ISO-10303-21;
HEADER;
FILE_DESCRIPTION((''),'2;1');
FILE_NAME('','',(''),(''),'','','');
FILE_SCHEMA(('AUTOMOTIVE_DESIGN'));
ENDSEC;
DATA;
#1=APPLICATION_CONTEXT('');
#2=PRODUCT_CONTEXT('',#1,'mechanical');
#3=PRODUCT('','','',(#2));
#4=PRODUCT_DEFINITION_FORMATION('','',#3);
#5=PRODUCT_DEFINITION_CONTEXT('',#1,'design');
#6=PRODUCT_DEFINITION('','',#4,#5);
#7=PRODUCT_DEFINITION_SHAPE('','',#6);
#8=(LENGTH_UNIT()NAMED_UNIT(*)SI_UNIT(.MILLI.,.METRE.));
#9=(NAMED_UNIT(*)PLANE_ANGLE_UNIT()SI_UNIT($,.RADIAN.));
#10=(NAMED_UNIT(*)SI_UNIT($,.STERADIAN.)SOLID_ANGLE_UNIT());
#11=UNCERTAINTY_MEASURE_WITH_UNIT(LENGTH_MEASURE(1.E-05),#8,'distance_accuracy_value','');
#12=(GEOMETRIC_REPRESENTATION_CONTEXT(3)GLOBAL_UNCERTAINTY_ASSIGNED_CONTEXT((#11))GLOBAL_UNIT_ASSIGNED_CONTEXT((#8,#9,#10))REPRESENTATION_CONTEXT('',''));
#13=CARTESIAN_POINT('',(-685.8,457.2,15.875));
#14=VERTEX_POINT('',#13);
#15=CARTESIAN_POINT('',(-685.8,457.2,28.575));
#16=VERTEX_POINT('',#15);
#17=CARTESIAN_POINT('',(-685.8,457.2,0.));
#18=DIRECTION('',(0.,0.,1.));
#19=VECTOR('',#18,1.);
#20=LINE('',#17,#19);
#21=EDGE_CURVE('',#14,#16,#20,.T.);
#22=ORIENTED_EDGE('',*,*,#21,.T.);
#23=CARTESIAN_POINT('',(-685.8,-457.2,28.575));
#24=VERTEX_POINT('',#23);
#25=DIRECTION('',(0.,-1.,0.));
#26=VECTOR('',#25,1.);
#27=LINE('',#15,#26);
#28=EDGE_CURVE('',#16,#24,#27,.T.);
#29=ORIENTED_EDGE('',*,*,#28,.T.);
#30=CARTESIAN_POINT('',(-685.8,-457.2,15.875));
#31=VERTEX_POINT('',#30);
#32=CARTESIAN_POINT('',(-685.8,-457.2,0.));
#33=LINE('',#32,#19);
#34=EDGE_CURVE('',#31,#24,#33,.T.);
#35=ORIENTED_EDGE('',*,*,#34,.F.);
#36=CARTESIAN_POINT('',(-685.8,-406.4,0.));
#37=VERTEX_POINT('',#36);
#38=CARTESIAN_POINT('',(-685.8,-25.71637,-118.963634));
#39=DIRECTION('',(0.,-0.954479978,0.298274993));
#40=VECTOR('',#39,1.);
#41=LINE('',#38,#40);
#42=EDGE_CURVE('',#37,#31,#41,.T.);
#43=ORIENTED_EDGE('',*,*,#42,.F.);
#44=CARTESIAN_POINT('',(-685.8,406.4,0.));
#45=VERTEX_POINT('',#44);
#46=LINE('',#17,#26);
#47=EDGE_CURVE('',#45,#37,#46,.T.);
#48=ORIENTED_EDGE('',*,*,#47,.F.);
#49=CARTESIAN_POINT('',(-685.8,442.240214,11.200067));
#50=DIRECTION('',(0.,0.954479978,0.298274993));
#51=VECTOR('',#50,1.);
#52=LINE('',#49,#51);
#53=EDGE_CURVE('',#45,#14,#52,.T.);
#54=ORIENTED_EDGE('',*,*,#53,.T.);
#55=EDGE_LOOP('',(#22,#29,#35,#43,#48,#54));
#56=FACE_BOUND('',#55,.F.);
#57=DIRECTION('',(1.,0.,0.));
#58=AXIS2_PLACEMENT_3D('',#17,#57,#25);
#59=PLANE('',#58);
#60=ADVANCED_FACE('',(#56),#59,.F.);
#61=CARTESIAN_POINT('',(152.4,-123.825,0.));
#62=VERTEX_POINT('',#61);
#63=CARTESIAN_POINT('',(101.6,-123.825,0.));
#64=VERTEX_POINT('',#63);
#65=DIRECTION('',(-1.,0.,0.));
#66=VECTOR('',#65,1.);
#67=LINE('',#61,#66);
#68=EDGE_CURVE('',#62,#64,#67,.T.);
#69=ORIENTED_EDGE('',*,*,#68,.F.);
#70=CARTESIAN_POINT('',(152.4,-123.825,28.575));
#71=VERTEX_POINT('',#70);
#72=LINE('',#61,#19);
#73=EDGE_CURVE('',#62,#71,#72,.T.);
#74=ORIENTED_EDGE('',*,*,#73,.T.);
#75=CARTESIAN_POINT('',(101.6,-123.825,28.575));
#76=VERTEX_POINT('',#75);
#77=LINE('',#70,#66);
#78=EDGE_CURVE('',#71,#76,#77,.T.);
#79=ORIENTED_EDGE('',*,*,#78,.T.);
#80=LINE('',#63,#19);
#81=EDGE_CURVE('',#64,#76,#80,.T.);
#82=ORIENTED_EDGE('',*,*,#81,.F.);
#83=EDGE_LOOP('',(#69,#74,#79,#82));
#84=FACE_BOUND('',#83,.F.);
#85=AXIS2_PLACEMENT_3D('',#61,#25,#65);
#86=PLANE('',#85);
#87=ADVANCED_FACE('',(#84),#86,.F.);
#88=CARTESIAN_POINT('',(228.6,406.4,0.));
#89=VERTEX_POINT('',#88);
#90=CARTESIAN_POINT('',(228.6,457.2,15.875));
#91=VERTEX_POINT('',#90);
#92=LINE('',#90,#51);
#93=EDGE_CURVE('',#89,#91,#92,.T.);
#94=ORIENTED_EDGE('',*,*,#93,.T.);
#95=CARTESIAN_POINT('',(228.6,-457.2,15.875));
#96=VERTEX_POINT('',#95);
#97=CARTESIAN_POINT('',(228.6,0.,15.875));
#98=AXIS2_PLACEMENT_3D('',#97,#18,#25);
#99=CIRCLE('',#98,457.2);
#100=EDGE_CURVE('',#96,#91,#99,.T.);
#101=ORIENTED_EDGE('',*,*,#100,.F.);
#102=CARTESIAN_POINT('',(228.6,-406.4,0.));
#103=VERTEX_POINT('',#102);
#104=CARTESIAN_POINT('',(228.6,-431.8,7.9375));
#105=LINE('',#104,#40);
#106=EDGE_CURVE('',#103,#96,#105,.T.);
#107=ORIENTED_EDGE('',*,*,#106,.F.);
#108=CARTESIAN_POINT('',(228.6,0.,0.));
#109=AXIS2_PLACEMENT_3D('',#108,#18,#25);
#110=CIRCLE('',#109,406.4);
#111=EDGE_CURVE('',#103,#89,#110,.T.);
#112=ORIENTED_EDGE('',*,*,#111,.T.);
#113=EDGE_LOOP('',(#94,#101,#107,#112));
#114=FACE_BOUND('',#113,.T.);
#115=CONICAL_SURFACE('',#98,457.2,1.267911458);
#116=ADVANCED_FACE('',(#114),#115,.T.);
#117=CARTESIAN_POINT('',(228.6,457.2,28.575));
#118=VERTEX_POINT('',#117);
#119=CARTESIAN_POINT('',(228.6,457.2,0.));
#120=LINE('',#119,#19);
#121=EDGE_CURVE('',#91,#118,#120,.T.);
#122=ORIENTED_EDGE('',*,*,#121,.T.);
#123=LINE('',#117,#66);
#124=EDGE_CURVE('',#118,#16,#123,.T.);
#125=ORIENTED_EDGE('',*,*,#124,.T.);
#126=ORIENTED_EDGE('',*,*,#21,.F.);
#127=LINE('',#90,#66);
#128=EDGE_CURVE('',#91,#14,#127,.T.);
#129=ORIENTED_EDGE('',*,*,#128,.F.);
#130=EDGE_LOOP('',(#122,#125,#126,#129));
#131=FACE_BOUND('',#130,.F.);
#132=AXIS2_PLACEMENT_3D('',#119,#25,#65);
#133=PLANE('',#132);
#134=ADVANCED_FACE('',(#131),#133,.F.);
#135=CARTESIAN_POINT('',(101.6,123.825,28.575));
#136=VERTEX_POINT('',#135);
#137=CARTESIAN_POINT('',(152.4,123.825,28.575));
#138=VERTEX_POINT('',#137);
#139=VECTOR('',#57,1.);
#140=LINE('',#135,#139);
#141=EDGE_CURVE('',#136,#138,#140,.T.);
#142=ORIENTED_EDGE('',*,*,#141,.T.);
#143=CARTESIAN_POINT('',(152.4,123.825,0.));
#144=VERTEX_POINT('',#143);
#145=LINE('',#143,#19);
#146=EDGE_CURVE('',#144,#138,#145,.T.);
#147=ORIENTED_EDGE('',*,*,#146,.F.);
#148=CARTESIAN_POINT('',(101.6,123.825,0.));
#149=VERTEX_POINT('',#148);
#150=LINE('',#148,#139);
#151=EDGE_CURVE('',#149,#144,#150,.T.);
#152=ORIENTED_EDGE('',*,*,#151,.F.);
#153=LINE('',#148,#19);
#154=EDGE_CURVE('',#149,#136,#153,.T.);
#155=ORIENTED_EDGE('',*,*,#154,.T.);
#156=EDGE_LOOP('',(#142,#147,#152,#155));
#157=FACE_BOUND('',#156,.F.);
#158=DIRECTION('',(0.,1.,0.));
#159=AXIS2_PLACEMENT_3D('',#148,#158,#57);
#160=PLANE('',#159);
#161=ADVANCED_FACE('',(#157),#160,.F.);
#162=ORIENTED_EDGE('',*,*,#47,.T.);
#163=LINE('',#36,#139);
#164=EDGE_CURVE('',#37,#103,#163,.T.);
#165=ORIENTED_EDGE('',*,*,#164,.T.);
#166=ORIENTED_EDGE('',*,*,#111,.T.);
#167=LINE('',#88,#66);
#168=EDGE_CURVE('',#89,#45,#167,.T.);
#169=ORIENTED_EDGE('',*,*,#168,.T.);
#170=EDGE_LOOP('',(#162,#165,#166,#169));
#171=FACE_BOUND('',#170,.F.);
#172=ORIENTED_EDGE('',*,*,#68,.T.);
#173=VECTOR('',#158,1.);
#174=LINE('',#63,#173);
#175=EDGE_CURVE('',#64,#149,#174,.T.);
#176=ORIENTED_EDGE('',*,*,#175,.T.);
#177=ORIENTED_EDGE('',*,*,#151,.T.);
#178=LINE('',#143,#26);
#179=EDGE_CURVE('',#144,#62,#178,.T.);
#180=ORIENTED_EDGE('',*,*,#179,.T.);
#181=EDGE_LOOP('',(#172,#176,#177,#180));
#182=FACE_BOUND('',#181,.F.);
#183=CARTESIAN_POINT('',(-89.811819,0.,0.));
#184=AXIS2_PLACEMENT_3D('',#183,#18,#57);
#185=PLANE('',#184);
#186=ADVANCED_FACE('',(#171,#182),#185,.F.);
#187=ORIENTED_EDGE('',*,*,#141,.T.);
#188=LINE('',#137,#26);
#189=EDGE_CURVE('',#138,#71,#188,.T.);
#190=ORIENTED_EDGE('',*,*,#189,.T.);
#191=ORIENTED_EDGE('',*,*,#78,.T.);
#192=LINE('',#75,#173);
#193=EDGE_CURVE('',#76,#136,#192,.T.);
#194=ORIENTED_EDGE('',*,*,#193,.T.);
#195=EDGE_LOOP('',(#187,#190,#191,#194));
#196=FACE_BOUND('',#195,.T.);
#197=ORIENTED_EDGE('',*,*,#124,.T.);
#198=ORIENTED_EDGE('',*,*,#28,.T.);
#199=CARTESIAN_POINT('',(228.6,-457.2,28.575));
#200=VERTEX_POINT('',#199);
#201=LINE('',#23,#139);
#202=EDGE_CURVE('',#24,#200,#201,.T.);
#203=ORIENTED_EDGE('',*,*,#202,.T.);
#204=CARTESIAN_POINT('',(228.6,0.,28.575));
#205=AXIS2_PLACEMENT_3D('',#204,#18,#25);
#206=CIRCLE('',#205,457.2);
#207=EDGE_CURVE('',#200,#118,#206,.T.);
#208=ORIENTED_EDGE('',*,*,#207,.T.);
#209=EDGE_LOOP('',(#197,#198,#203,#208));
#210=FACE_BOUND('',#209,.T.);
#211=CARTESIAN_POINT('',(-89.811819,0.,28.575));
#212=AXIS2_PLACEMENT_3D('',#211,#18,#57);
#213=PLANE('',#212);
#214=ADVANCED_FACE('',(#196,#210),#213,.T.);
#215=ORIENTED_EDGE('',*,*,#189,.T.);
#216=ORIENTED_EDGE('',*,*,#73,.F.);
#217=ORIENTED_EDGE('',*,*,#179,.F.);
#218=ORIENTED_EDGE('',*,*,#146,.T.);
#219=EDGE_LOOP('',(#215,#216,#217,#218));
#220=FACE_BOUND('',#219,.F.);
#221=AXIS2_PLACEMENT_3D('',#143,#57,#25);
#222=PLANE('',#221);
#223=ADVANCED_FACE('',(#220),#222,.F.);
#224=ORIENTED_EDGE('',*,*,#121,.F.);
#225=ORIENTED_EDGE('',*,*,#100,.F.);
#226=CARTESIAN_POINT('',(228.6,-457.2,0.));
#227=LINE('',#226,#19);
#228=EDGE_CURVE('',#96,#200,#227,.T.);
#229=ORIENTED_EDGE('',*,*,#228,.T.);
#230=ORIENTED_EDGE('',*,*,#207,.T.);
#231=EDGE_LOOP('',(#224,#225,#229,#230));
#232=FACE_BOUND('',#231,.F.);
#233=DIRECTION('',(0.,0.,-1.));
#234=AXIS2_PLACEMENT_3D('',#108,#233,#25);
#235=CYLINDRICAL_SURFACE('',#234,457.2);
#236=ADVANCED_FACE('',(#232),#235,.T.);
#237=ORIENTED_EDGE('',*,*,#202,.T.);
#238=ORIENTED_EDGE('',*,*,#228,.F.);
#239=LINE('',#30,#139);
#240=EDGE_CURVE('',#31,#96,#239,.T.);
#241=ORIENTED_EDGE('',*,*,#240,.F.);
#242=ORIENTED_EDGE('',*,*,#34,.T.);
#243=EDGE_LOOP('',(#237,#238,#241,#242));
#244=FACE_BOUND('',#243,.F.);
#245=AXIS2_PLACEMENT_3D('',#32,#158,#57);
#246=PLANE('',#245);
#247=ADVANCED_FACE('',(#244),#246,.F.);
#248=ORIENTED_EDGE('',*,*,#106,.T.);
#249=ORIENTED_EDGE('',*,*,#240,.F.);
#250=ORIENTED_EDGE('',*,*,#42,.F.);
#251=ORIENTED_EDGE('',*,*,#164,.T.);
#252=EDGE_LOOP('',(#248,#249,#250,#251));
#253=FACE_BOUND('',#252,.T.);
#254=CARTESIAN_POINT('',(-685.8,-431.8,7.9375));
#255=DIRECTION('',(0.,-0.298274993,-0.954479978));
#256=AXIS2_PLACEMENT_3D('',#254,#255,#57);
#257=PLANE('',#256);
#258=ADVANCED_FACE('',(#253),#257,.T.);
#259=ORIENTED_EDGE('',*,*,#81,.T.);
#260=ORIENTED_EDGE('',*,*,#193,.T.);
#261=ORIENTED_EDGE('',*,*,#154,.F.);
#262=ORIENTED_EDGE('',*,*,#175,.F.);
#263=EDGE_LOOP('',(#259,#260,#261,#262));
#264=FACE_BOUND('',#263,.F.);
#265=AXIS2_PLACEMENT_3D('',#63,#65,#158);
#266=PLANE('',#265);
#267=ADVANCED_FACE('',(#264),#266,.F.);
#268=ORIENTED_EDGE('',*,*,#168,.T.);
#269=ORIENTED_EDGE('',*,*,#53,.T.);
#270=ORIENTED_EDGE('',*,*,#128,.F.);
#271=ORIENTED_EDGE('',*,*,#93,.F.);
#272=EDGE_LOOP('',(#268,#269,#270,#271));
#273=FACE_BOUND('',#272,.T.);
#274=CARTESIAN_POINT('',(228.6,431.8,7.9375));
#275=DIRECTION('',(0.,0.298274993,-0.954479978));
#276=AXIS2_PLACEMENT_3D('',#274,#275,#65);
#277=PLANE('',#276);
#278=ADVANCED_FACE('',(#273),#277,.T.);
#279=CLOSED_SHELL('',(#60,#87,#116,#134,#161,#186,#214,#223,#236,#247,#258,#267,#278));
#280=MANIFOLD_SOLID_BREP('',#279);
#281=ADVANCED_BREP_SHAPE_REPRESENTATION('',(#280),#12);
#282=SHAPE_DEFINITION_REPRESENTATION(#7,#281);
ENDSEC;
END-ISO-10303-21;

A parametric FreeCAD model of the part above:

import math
import FreeCAD as App
import Part
import Sketcher
from FreeCAD import Vector
Q = App.Units.Quantity


def edges_at(feature, points):
    """Names of the edges that pass closest to the given points."""
    edges = feature.Shape.Edges
    near = lambda p: min(range(len(edges)), key=lambda i: edges[i].distToShape(Part.Vertex(*p))[0])
    return sorted({f"Edge{near(p) + 1}" for p in points})


def add_polygon(sketch, points):
    """Adds a closed chain of lines whose ends are joined by coincident constraints."""
    first, n = sketch.GeometryCount, len(points)
    for a, b in zip(points, points[1:] + points[:1]):
        sketch.addGeometry(Part.LineSegment(App.Vector(*a, 0), App.Vector(*b, 0)), False)
    for i in range(n):
        sketch.addConstraint(Sketcher.Constraint("Coincident", first + i, 2, first + (i + 1) % n, 1))

doc = App.newDocument("Part")
body = doc.addObject("PartDesign::Body", "Body")

sketch1 = body.newObject("Sketcher::SketchObject", "Sketch")
sketch1.AttachmentSupport = (doc.getObject("XY_Plane"), [""])
sketch1.MapMode = "FlatFace"
sketch1.addGeometry(Part.LineSegment(Vector(229, 457, 0), Vector(-686, 457, 0)), False)
sketch1.addGeometry(Part.LineSegment(Vector(-686, 457, 0), Vector(-686, -457, 0)), False)
sketch1.addGeometry(Part.LineSegment(Vector(-686, -457, 0), Vector(229, -457, 0)), False)
sketch1.addGeometry(Part.ArcOfCircle(Part.Circle(Vector(229, 0, 0), Vector(0, 0, 1), 457), math.radians(-90), math.radians(90)), False)
add_polygon(sketch1, [(102, 124), (152, 124), (152, -124), (102, -124)])
sketch1.addConstraint([
    Sketcher.Constraint("Coincident", 0, 2, 1, 1),
    Sketcher.Constraint("Coincident", 1, 2, 2, 1),
    Sketcher.Constraint("Tangent", 2, 2, 3, 1),
    Sketcher.Constraint("Tangent", 3, 2, 0, 1),
    Sketcher.Constraint("Horizontal", 0),
    Sketcher.Constraint("Vertical", 1),
    Sketcher.Constraint("Horizontal", 2),
    Sketcher.Constraint("Horizontal", 4),
    Sketcher.Constraint("Vertical", 5),
    Sketcher.Constraint("Horizontal", 6),
    Sketcher.Constraint("Vertical", 7),
    Sketcher.Constraint("PointOnObject", 3, 3, -1),
    Sketcher.Constraint("Equal", 2, 1),
    Sketcher.Constraint("Radius", 3, Q("18 in")),
    Sketcher.Constraint("DistanceX", 4, 1, 4, 2, Q("2 in")),
    Sketcher.Constraint("DistanceX", -1, 1, 3, 3, Q("9 in")),
    Sketcher.Constraint("DistanceX", -1, 1, 4, 2, Q("6 in")),
    Sketcher.Constraint("DistanceY", 5, 2, 5, 1, Q("9.75 in")),
    Sketcher.Constraint("DistanceY", -1, 1, 4, 2, Q("4.875 in")),
])
pad1 = body.newObject("PartDesign::Pad", "Pad")
pad1.Profile = sketch1
pad1.Length = Q("1.125 in")
doc.recompute()

chamfer = body.newObject("PartDesign::Chamfer", "Chamfer")
chamfer.Base = (pad1, edges_at(pad1, [(-228.6, 457.2, 0), (685.8, 0, 0), (-228.6, -457.2, 0)]))
chamfer.ChamferType = "Two distances"
chamfer.Size = Q("2 in")
chamfer.Size2 = Q("0.625 in")
chamfer.FlipDirection = True

doc.recompute()
